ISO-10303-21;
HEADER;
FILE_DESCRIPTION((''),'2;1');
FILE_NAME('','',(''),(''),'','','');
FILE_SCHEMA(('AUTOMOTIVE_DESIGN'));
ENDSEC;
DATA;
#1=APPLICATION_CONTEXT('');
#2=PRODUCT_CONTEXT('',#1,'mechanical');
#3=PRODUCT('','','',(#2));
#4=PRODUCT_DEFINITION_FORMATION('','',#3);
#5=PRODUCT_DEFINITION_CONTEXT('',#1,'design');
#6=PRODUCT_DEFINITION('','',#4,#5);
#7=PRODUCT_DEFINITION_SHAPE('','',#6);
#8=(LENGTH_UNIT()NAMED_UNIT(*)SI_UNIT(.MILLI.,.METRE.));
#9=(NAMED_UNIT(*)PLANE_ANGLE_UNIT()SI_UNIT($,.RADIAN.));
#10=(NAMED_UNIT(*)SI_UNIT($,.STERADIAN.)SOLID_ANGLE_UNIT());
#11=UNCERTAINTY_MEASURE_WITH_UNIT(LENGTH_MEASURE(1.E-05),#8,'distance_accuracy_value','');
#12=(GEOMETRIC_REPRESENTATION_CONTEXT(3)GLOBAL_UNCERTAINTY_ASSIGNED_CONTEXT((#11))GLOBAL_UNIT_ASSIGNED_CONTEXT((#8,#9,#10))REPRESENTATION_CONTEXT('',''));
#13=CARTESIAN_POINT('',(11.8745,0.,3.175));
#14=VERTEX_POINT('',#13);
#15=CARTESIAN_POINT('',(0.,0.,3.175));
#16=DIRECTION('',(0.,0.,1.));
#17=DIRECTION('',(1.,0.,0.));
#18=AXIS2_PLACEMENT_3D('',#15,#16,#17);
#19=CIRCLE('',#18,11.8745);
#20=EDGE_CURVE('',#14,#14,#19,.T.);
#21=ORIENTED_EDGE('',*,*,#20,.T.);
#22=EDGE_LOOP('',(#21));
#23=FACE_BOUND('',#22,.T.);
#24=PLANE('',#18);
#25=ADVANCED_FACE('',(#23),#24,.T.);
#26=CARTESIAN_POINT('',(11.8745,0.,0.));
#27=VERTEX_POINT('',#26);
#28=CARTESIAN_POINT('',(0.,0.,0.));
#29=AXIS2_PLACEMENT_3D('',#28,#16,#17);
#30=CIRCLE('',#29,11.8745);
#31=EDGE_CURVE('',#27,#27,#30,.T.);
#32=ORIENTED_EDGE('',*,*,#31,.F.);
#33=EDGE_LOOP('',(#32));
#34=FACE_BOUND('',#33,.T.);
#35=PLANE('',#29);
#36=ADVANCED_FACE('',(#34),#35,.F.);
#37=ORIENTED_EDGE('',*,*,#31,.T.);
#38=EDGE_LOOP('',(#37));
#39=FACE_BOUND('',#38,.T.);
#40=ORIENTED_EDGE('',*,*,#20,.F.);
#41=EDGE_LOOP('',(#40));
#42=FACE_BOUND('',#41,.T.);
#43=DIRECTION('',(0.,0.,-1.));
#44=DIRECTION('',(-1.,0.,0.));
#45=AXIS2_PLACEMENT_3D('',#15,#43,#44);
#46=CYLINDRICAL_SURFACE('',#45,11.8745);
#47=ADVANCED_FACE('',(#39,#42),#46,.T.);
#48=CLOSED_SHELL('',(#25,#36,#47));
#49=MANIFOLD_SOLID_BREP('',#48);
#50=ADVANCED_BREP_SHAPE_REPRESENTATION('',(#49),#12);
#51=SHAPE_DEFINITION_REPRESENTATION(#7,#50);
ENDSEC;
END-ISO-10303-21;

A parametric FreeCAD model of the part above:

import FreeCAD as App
import Part
import Sketcher

V = App.Vector
Q = App.Units.Quantity

doc = App.newDocument("Part")
body = doc.addObject("PartDesign::Body", "Body")

# Sketch on XY plane
sketch1 = doc.addObject("Sketcher::SketchObject", "Sketch")
body.addObject(sketch1)
sketch1.AttachmentSupport = (doc.XY_Plane, [""])
sketch1.MapMode = "FlatFace"
sketch1.addGeometry(Part.Circle(V(0, 0, 0), V(0, 0, 1), 12), False)
sketch1.addConstraint([
    Sketcher.Constraint("Coincident", 0, 3, -1, 1),
    Sketcher.Constraint("Diameter", 0, Q("0.935 in")),
])
pad1 = doc.addObject("PartDesign::Pad", "Pad")
body.addObject(pad1)
pad1.Profile = sketch1
pad1.Length = Q("0.125 in")

doc.recompute()
